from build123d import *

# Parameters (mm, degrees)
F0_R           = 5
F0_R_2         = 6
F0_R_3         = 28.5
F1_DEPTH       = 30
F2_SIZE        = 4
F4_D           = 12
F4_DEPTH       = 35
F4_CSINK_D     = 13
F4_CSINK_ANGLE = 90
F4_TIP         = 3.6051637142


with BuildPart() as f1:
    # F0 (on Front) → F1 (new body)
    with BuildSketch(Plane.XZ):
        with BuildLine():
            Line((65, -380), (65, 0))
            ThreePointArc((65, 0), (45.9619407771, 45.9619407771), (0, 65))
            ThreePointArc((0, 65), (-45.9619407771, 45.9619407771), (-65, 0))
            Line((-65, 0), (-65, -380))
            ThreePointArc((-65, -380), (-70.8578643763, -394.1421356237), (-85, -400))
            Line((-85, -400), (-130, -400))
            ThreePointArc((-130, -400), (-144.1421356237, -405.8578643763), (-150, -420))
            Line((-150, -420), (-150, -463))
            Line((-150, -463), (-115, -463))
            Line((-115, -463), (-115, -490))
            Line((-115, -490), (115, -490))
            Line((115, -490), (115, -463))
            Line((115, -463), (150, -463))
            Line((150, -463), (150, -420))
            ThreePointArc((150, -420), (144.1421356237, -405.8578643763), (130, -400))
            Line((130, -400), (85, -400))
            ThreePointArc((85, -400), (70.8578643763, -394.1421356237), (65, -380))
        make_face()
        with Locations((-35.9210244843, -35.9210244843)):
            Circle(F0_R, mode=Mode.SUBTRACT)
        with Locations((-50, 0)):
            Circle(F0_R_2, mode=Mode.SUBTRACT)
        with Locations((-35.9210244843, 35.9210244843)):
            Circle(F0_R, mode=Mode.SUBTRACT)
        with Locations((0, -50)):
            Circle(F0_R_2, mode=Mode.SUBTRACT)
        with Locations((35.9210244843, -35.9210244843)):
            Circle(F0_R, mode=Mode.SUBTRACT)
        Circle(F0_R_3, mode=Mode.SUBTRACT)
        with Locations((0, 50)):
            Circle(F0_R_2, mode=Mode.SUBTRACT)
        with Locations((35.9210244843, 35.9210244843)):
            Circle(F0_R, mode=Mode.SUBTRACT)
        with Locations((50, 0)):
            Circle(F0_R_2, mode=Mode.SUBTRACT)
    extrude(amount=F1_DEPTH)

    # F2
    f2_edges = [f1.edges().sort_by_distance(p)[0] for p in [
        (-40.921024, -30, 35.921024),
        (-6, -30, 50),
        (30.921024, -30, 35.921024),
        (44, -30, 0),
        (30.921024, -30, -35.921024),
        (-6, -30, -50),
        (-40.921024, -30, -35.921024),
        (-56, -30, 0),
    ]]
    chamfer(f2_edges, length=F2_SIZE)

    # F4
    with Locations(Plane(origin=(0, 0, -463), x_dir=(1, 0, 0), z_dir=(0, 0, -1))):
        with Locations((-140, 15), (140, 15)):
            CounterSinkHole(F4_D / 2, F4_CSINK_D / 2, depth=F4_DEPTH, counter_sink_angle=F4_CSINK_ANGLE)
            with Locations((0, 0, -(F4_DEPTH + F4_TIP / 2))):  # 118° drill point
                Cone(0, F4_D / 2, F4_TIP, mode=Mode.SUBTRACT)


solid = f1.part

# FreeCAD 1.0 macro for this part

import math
import FreeCAD as App
import Part
import Sketcher

V = App.Vector


def edges_at(feature, points):
    """Names of the edges that pass closest to the given points."""
    edges = feature.Shape.Edges
    near = lambda p: min(range(len(edges)), key=lambda i: edges[i].distToShape(Part.Vertex(*p))[0])
    return sorted({f"Edge{near(p) + 1}" for p in points})

doc = App.newDocument("Part")
body = doc.addObject("PartDesign::Body", "Body")

# Sketch on XZ plane
sketch1 = doc.addObject("Sketcher::SketchObject", "Sketch")
body.addObject(sketch1)
sketch1.AttachmentSupport = (doc.XZ_Plane, [""])
sketch1.MapMode = "FlatFace"
sketch1.addGeometry([
    Part.LineSegment(V(65, -380, 0), V(65, 0, 0)),  # 0
    Part.ArcOfCircle(Part.Circle(V(0, 0, 0), V(0, 0, 1), 65), math.radians(0), math.radians(90)),  # 1
    Part.ArcOfCircle(Part.Circle(V(0, 0, 0), V(0, 0, 1), 65), math.radians(90), math.radians(180)),  # 2
    Part.LineSegment(V(-65, 0, 0), V(-65, -380, 0)),  # 3
    Part.ArcOfCircle(Part.Circle(V(-85, -380, 0), V(0, 0, 1), 20), math.radians(-90), math.radians(0)),  # 4
    Part.LineSegment(V(-85, -400, 0), V(-130, -400, 0)),  # 5
    Part.ArcOfCircle(Part.Circle(V(-130, -420, 0), V(0, 0, 1), 20), math.radians(90), math.radians(180)),  # 6
    Part.LineSegment(V(-150, -420, 0), V(-150, -463, 0)),  # 7
    Part.LineSegment(V(-150, -463, 0), V(-115, -463, 0)),  # 8
    Part.LineSegment(V(-115, -463, 0), V(-115, -490, 0)),  # 9
    Part.LineSegment(V(-115, -490, 0), V(115, -490, 0)),  # 10
    Part.LineSegment(V(115, -490, 0), V(115, -463, 0)),  # 11
    Part.LineSegment(V(115, -463, 0), V(150, -463, 0)),  # 12
    Part.LineSegment(V(150, -463, 0), V(150, -420, 0)),  # 13
    Part.ArcOfCircle(Part.Circle(V(130, -420, 0), V(0, 0, 1), 20), math.radians(0), math.radians(90)),  # 14
    Part.LineSegment(V(130, -400, 0), V(85, -400, 0)),  # 15
    Part.ArcOfCircle(Part.Circle(V(85, -380, 0), V(0, 0, 1), 20), math.radians(180), math.radians(270)),  # 16
    Part.Circle(V(-35.921024, -35.921024, 0), V(0, 0, 1), 5),  # 17
    Part.Circle(V(0, -50, 0), V(0, 0, 1), 6),  # 18
    Part.Circle(V(35.921024, -35.921024, 0), V(0, 0, 1), 5),  # 19
    Part.Circle(V(-50, 0, 0), V(0, 0, 1), 6),  # 20
    Part.Circle(V(-35.921024, 35.921024, 0), V(0, 0, 1), 5),  # 21
    Part.Circle(V(0, 0, 0), V(0, 0, 1), 28.5),  # 22
    Part.Circle(V(50, 0, 0), V(0, 0, 1), 6),  # 23
    Part.Circle(V(0, 50, 0), V(0, 0, 1), 6),  # 24
    Part.Circle(V(35.921024, 35.921024, 0), V(0, 0, 1), 5),  # 25
], False)
sketch1.addConstraint([
    Sketcher.Constraint("Tangent", 0, 2, 1, 1),
    Sketcher.Constraint("Tangent", 1, 2, 2, 1),
    Sketcher.Constraint("Tangent", 2, 2, 3, 1),
    Sketcher.Constraint("Tangent", 3, 2, 4, 2),
    Sketcher.Constraint("Tangent", 4, 1, 5, 1),
    Sketcher.Constraint("Tangent", 5, 2, 6, 1),
    Sketcher.Constraint("Tangent", 6, 2, 7, 1),
    Sketcher.Constraint("Coincident", 7, 2, 8, 1),
    Sketcher.Constraint("Coincident", 8, 2, 9, 1),
    Sketcher.Constraint("Coincident", 9, 2, 10, 1),
    Sketcher.Constraint("Coincident", 10, 2, 11, 1),
    Sketcher.Constraint("Coincident", 11, 2, 12, 1),
    Sketcher.Constraint("Coincident", 12, 2, 13, 1),
    Sketcher.Constraint("Tangent", 13, 2, 14, 1),
    Sketcher.Constraint("Tangent", 14, 2, 15, 1),
    Sketcher.Constraint("Tangent", 15, 2, 16, 2),
    Sketcher.Constraint("Tangent", 16, 1, 0, 1),
    Sketcher.Constraint("Vertical", 0),
    Sketcher.Constraint("Vertical", 3),
    Sketcher.Constraint("Horizontal", 5),
    Sketcher.Constraint("Vertical", 7),
    Sketcher.Constraint("Horizontal", 8),
    Sketcher.Constraint("Vertical", 9),
    Sketcher.Constraint("Horizontal", 10),
    Sketcher.Constraint("Vertical", 11),
    Sketcher.Constraint("Horizontal", 12),
    Sketcher.Constraint("Vertical", 13),
    Sketcher.Constraint("Horizontal", 15),
    Sketcher.Constraint("Coincident", 1, 3, -1, 1),
    Sketcher.Constraint("Coincident", 22, 3, -1, 1),
    Sketcher.Constraint("Equal", 1, 2),
    Sketcher.Constraint("Equal", 4, 6),
    Sketcher.Constraint("Equal", 6, 14),
    Sketcher.Constraint("Equal", 14, 16),
    Sketcher.Constraint("Equal", 17, 19),
    Sketcher.Constraint("Equal", 18, 20),
    Sketcher.Constraint("Equal", 19, 21),
    Sketcher.Constraint("Equal", 20, 23),
    Sketcher.Constraint("Equal", 23, 24),
    Sketcher.Constraint("Equal", 21, 25),
    Sketcher.Constraint("Symmetric", 19, 3, 21, 3, -1, 1),
    Sketcher.Constraint("Symmetric", 20, 3, 23, 3, -1, 1),
    Sketcher.Constraint("Symmetric", 18, 3, 24, 3, -1, 1),
    Sketcher.Constraint("Symmetric", 17, 3, 25, 3, -1, 1),
    Sketcher.Constraint("Symmetric", 6, 3, 14, 3, -2),
    Sketcher.Constraint("Symmetric", 17, 3, 19, 3, -2),
    Sketcher.Constraint("Symmetric", 8, 2, 11, 2, -2),
    Sketcher.Constraint("PointOnObject", 18, 3, -2),
    Sketcher.Constraint("PointOnObject", 20, 3, -1),
    Sketcher.Constraint("PointOnObject", 1, 2, -2),
    Sketcher.Constraint("Diameter", 17, 10.0),
    Sketcher.Constraint("Diameter", 18, 12.0),
    Sketcher.Constraint("Diameter", 22, 57.0),
    Sketcher.Constraint("Radius", 1, 65.0),
    Sketcher.Constraint("Radius", 4, 20.0),
    Sketcher.Constraint("DistanceX", 5, 2, 5, 1, 45.0),
    Sketcher.Constraint("DistanceX", 8, 1, 8, 2, 35.0),
    Sketcher.Constraint("DistanceY", 0, 1, 0, 2, 380.0),
    Sketcher.Constraint("DistanceY", 7, 2, 7, 1, 43.0),
    Sketcher.Constraint("DistanceY", 9, 2, 9, 1, 27.0),
    Sketcher.Constraint("DistanceY", 18, 3, -1, 1, 50.0),
    Sketcher.Constraint("DistanceX", 20, 3, -1, 1, 50.0),
    Sketcher.Constraint("DistanceX", 17, 3, 19, 3, 71.842049),
    Sketcher.Constraint("DistanceY", 17, 3, 21, 3, 71.842049),
])
pad1 = doc.addObject("PartDesign::Pad", "Pad")
body.addObject(pad1)
pad1.Profile = sketch1
pad1.Length = 30
doc.recompute()

chamfer = doc.addObject("PartDesign::Chamfer", "Chamfer")
body.addObject(chamfer)
chamfer.Base = (pad1, edges_at(pad1, [
    (-40.921, -30, 35.921),
    (-6, -30, 50),
    (30.921, -30, 35.921),
    (44, -30, 0),
    (30.921, -30, -35.921),
    (-6, -30, -50),
    (-40.921, -30, -35.921),
    (-56, -30, 0),
]))
chamfer.Size = 4

# Sketch on XY plane
sketch2 = doc.addObject("Sketcher::SketchObject", "Sketch001")
body.addObject(sketch2)
sketch2.AttachmentSupport = (doc.XY_Plane, [""])
sketch2.MapMode = "FlatFace"
sketch2.AttachmentOffset = App.Placement(V(0, 0, -463), App.Rotation())
sketch2.addGeometry([
    Part.Circle(V(-140, -15, 0), V(0, 0, 1), 6),
    Part.Circle(V(140, -15, 0), V(0, 0, 1), 6),
], False)
sketch2.addConstraint([
    Sketcher.Constraint("Equal", 0, 1),
    Sketcher.Constraint("Symmetric", 0, 3, 1, 3, -2),
    Sketcher.Constraint("Diameter", 0, 12.0),
    Sketcher.Constraint("DistanceX", 0, 3, -1, 1, 140.0),
    Sketcher.Constraint("DistanceY", 0, 3, -1, 1, 15.0),
])
doc.recompute()
hole = doc.addObject("PartDesign::Hole", "Hole")
body.addObject(hole)
hole.Profile = sketch2
hole.ThreadType = "None"
hole.Diameter = 12
hole.DepthType = "Dimension"
hole.Depth = 35
hole.DrillPoint = "Angled"
hole.DrillPointAngle = 118
hole.HoleCutType = "Countersink"
hole.HoleCutDiameter = 13
hole.HoleCutCountersinkAngle = 90
hole.Reversed = True

doc.recompute()
